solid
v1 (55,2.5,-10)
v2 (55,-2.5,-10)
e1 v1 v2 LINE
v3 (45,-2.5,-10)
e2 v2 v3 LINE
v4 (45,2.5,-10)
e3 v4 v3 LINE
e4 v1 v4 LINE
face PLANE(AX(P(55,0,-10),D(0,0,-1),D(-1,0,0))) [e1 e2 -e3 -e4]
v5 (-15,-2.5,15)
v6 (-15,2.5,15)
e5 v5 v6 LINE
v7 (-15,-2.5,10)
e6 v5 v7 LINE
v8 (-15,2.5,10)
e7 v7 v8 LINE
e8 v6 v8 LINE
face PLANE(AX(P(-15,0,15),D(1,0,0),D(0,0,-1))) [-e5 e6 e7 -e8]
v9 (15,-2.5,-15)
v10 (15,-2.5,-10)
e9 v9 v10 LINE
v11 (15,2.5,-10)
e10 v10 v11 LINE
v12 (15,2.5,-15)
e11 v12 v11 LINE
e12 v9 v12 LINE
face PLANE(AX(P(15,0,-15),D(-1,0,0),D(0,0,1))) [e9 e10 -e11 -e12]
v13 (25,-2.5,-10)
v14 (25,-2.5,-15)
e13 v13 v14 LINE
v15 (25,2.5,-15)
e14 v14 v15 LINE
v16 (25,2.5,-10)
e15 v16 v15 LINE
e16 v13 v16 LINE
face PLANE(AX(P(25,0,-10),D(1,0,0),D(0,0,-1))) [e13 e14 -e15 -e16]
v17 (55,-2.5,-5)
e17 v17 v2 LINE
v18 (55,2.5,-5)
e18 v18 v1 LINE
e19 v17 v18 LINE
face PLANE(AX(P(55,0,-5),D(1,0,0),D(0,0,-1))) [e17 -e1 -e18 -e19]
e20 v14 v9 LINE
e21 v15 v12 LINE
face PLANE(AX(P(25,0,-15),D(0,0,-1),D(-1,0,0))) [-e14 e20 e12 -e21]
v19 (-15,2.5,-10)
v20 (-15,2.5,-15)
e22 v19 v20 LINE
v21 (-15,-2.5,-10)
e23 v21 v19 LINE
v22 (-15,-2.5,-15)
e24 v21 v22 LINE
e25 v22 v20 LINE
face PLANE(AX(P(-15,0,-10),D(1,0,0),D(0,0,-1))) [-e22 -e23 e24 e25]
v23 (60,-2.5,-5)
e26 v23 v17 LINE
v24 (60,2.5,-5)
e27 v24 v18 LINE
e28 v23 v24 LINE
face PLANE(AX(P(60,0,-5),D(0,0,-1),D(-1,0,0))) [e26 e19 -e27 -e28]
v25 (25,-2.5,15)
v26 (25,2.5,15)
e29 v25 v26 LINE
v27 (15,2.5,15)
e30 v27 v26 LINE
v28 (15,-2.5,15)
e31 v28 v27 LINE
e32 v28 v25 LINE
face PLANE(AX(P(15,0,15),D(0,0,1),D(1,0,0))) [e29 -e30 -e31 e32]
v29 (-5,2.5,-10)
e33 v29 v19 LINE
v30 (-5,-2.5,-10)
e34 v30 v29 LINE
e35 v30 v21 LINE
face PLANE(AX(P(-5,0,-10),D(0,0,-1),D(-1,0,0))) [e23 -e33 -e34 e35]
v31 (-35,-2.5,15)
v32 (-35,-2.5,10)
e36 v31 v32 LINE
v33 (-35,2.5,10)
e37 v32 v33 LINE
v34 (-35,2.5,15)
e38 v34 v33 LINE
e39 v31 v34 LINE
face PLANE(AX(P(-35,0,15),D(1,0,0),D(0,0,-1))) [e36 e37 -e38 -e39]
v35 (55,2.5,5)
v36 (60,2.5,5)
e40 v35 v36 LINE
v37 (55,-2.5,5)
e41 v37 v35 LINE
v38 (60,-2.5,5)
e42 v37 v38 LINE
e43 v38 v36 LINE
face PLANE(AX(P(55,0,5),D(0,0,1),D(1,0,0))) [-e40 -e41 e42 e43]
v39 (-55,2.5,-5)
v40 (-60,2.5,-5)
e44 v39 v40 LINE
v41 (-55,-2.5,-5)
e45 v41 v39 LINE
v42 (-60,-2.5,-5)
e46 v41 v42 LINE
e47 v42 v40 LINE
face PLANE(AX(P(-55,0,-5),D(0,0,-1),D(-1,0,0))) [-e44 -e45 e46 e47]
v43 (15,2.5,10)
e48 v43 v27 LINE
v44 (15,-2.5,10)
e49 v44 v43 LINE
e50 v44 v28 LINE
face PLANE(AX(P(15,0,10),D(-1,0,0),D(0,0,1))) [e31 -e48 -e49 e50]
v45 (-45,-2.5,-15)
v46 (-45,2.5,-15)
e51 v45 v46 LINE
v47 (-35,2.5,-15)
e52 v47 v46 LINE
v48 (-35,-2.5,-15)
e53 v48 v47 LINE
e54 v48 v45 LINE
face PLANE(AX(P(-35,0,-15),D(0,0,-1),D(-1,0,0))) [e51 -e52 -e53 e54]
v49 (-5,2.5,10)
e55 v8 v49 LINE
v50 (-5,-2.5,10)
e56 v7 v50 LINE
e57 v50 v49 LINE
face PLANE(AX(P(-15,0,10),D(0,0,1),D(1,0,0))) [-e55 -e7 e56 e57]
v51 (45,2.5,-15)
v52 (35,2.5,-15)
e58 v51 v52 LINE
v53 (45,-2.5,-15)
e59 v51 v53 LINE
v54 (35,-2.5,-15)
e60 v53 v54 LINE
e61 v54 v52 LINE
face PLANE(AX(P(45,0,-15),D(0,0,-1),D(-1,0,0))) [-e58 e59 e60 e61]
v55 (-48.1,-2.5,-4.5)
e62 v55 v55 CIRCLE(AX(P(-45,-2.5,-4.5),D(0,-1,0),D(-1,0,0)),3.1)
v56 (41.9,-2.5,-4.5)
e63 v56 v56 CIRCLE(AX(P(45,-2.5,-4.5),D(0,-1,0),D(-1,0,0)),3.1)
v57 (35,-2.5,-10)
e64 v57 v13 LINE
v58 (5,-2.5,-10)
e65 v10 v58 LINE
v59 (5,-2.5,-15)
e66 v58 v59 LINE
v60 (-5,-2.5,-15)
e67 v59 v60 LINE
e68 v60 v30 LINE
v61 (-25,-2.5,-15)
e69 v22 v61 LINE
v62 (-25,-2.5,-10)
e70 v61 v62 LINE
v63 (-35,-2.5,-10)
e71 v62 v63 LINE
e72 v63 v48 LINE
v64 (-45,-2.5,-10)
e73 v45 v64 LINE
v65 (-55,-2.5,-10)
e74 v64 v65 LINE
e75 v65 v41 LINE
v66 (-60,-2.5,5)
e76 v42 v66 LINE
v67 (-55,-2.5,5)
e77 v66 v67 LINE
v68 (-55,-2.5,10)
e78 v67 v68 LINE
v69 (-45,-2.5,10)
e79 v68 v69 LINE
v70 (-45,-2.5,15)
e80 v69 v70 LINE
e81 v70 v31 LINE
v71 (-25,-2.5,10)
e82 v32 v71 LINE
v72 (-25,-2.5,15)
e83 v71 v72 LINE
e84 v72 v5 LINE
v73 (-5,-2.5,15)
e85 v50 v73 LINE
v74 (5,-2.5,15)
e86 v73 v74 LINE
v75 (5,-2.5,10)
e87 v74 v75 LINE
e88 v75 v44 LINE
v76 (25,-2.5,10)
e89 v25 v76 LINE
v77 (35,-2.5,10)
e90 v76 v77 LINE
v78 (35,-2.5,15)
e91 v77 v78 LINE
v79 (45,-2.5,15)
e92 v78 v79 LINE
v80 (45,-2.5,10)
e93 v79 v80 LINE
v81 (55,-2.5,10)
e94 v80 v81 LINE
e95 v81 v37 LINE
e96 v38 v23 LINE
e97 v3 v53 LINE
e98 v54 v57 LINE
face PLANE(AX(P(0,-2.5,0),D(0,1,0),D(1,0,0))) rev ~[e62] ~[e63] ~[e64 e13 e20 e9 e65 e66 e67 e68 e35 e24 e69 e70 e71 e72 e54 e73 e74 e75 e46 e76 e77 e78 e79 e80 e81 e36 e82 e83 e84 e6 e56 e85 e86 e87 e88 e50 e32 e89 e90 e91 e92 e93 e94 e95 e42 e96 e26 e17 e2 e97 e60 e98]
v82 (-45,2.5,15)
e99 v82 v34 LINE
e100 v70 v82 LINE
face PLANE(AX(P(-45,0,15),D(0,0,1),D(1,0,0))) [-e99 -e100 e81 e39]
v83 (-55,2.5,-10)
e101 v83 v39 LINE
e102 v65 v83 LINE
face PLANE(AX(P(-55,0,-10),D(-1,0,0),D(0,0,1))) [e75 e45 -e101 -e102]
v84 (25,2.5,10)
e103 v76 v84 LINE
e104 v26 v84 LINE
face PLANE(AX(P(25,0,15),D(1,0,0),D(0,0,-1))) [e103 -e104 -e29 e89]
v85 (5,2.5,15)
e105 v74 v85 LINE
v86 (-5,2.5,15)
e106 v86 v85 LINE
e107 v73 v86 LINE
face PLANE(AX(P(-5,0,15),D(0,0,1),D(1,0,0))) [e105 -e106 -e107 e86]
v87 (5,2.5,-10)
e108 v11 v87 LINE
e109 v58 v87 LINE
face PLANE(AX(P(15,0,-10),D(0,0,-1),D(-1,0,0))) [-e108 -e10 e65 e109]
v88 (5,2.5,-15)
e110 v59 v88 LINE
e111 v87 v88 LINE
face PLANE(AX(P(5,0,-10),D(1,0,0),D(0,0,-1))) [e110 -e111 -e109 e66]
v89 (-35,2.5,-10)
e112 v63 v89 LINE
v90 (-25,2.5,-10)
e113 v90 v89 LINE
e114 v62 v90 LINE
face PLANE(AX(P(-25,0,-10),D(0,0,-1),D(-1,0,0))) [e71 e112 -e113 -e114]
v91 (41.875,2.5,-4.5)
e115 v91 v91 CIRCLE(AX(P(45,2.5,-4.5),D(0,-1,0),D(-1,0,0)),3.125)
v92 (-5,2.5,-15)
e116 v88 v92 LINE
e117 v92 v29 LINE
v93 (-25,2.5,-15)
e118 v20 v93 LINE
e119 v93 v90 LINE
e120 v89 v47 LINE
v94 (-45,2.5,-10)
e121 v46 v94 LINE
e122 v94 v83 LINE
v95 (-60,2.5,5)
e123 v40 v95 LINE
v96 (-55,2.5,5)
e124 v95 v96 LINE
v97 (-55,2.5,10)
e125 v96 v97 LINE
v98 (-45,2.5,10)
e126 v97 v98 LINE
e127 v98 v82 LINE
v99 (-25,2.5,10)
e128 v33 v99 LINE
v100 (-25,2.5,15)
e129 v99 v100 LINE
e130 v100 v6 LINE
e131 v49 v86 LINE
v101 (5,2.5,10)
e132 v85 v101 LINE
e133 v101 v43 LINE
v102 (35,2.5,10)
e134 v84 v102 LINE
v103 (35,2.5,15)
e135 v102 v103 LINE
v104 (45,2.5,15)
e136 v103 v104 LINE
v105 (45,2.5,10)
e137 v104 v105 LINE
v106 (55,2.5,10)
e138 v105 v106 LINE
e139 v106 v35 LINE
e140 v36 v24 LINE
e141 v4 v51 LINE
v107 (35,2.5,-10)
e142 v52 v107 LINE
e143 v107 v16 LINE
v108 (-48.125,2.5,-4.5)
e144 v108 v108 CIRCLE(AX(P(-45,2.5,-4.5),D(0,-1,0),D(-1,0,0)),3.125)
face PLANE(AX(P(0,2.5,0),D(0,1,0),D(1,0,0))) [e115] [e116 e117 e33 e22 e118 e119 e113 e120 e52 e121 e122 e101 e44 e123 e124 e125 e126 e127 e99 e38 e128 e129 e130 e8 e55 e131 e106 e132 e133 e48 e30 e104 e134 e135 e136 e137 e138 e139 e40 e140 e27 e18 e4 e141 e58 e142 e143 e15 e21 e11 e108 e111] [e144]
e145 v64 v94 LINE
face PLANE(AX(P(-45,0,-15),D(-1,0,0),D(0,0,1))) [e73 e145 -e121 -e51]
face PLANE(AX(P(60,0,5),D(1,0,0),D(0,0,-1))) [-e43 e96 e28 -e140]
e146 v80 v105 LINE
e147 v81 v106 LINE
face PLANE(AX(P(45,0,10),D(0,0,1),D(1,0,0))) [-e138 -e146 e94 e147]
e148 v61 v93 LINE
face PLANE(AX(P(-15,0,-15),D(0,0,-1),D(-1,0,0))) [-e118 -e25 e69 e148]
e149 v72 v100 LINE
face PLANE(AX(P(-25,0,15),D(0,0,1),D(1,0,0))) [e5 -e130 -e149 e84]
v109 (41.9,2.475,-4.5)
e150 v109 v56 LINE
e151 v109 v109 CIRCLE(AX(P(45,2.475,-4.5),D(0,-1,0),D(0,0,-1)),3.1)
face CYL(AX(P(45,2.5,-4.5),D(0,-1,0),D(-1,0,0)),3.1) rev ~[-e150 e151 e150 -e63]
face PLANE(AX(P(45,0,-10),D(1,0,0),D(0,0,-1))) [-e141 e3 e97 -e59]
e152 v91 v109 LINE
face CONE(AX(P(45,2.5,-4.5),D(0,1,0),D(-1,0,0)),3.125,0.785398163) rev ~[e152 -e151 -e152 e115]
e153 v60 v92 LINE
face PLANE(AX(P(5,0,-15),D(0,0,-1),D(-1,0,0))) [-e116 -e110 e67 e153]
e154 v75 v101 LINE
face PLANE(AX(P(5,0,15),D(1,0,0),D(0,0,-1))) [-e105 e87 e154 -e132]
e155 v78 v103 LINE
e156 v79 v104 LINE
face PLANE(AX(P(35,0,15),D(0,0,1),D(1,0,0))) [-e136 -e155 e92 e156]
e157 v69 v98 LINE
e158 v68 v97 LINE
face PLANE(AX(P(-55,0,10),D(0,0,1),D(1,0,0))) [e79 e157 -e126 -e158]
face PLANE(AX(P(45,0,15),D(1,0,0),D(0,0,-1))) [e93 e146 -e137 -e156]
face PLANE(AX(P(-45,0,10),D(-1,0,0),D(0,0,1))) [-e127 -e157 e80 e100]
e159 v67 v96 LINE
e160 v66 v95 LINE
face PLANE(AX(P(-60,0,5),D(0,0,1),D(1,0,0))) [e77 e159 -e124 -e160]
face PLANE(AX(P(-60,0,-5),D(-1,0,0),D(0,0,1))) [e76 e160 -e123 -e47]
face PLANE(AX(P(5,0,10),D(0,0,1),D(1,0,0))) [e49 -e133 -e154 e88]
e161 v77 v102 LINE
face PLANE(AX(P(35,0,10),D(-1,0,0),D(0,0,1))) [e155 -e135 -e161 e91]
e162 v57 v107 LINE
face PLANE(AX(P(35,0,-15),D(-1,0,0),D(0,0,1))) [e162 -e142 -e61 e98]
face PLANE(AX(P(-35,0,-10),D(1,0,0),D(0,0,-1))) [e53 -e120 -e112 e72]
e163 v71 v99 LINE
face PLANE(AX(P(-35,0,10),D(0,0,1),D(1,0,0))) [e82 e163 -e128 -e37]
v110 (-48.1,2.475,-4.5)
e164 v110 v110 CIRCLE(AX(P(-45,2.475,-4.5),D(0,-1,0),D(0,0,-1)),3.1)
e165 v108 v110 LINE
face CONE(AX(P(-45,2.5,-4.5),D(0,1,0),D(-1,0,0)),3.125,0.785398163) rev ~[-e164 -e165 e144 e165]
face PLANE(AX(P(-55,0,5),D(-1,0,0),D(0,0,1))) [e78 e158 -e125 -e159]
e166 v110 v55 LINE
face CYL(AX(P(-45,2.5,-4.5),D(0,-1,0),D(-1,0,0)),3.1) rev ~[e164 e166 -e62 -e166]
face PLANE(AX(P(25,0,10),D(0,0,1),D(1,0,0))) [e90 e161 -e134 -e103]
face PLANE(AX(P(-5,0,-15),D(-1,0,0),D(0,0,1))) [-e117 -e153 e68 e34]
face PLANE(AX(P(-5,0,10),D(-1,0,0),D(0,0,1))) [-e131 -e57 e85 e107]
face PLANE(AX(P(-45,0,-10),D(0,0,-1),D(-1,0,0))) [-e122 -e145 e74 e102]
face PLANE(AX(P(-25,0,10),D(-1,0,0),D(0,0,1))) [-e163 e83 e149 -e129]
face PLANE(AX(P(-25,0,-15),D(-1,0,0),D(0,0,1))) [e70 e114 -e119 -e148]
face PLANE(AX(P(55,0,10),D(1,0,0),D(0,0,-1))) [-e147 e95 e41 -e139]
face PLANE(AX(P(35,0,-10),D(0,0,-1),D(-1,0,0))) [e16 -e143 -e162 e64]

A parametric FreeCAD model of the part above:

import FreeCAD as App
import Part
import Sketcher

V = App.Vector


def add_polygon(sketch, points):
    """Adds a closed chain of lines whose ends are joined by coincident constraints."""
    first, n = sketch.GeometryCount, len(points)
    for a, b in zip(points, points[1:] + points[:1]):
        sketch.addGeometry(Part.LineSegment(App.Vector(*a, 0), App.Vector(*b, 0)), False)
    for i in range(n):
        sketch.addConstraint(Sketcher.Constraint("Coincident", first + i, 2, first + (i + 1) % n, 1))

doc = App.newDocument("Part")
params = doc.addObject("Spreadsheet::Sheet", "Params")
for row, (alias, value) in enumerate([
    ("sketch1_width", "10 mm"),
    ("sketch1_width2", "5 mm"),
    ("pad1_length", "5 mm"),
    ("sketch2_diameter", "6.2 mm"),
    ("hole_diameter", "6.2 mm"),
    ("hole_csink_diameter", "6.25 mm"),
], start=1):
    params.set(f"A{row}", alias)
    params.set(f"B{row}", "=" + value)
    params.setAlias(f"B{row}", alias)

body = doc.addObject("PartDesign::Body", "Body")

# Sketch on XZ plane
sketch1 = body.newObject("Sketcher::SketchObject", "Sketch")
sketch1.AttachmentSupport = (doc.getObject("XZ_Plane"), [""])
sketch1.MapMode = "FlatFace"
add_polygon(sketch1, [(45, -15), (35, -15), (35, -10), (25, -10), (25, -15), (15, -15), (15, -10), (5, -10), (5, -15), (-5, -15), (-5, -10), (-15, -10), (-15, -15), (-25, -15), (-25, -10), (-35, -10), (-35, -15), (-45, -15), (-45, -10), (-55, -10), (-55, -5), (-60, -5), (-60, 5), (-55, 5), (-55, 10), (-45, 10), (-45, 15), (-35, 15), (-35, 10), (-25, 10), (-25, 15), (-15, 15), (-15, 10), (-5, 10), (-5, 15), (5, 15), (5, 10), (15, 10), (15, 15), (25, 15), (25, 10), (35, 10), (35, 15), (45, 15), (45, 10), (55, 10), (55, 5), (60, 5), (60, -5), (55, -5), (55, -10), (45, -10)])  # lines 0-51
sketch1.addConstraint(Sketcher.Constraint("Horizontal", 0))
sketch1.addConstraint(Sketcher.Constraint("Vertical", 1))
sketch1.addConstraint(Sketcher.Constraint("Horizontal", 2))
sketch1.addConstraint(Sketcher.Constraint("Vertical", 3))
sketch1.addConstraint(Sketcher.Constraint("Horizontal", 4))
sketch1.addConstraint(Sketcher.Constraint("Vertical", 5))
sketch1.addConstraint(Sketcher.Constraint("Horizontal", 6))
sketch1.addConstraint(Sketcher.Constraint("Vertical", 7))
sketch1.addConstraint(Sketcher.Constraint("Horizontal", 8))
sketch1.addConstraint(Sketcher.Constraint("Vertical", 9))
sketch1.addConstraint(Sketcher.Constraint("Horizontal", 10))
sketch1.addConstraint(Sketcher.Constraint("Vertical", 11))
sketch1.addConstraint(Sketcher.Constraint("Horizontal", 12))
sketch1.addConstraint(Sketcher.Constraint("Vertical", 13))
sketch1.addConstraint(Sketcher.Constraint("Horizontal", 14))
sketch1.addConstraint(Sketcher.Constraint("Vertical", 15))
sketch1.addConstraint(Sketcher.Constraint("Horizontal", 16))
sketch1.addConstraint(Sketcher.Constraint("Vertical", 17))
sketch1.addConstraint(Sketcher.Constraint("Horizontal", 18))
sketch1.addConstraint(Sketcher.Constraint("Vertical", 19))
sketch1.addConstraint(Sketcher.Constraint("Horizontal", 20))
sketch1.addConstraint(Sketcher.Constraint("Vertical", 21))
sketch1.addConstraint(Sketcher.Constraint("Horizontal", 22))
sketch1.addConstraint(Sketcher.Constraint("Vertical", 23))
sketch1.addConstraint(Sketcher.Constraint("Horizontal", 24))
sketch1.addConstraint(Sketcher.Constraint("Vertical", 25))
sketch1.addConstraint(Sketcher.Constraint("Horizontal", 26))
sketch1.addConstraint(Sketcher.Constraint("Vertical", 27))
sketch1.addConstraint(Sketcher.Constraint("Horizontal", 28))
sketch1.addConstraint(Sketcher.Constraint("Vertical", 29))
sketch1.addConstraint(Sketcher.Constraint("Horizontal", 30))
sketch1.addConstraint(Sketcher.Constraint("Vertical", 31))
sketch1.addConstraint(Sketcher.Constraint("Horizontal", 32))
sketch1.addConstraint(Sketcher.Constraint("Vertical", 33))
sketch1.addConstraint(Sketcher.Constraint("Horizontal", 34))
sketch1.addConstraint(Sketcher.Constraint("Vertical", 35))
sketch1.addConstraint(Sketcher.Constraint("Horizontal", 36))
sketch1.addConstraint(Sketcher.Constraint("Vertical", 37))
sketch1.addConstraint(Sketcher.Constraint("Horizontal", 38))
sketch1.addConstraint(Sketcher.Constraint("Vertical", 39))
sketch1.addConstraint(Sketcher.Constraint("Horizontal", 40))
sketch1.addConstraint(Sketcher.Constraint("Vertical", 41))
sketch1.addConstraint(Sketcher.Constraint("Horizontal", 42))
sketch1.addConstraint(Sketcher.Constraint("Vertical", 43))
sketch1.addConstraint(Sketcher.Constraint("Horizontal", 44))
sketch1.addConstraint(Sketcher.Constraint("Vertical", 45))
sketch1.addConstraint(Sketcher.Constraint("Horizontal", 46))
sketch1.addConstraint(Sketcher.Constraint("Vertical", 47))
sketch1.addConstraint(Sketcher.Constraint("Horizontal", 48))
sketch1.addConstraint(Sketcher.Constraint("Vertical", 49))
sketch1.addConstraint(Sketcher.Constraint("Horizontal", 50))
sketch1.addConstraint(Sketcher.Constraint("Vertical", 51))
sketch1.addConstraint(Sketcher.Constraint("Symmetric", 0, 2, 26, 2, -1, 1))
sketch1.addConstraint(Sketcher.Constraint("Symmetric", 2, 2, 28, 2, -1, 1))
sketch1.addConstraint(Sketcher.Constraint("Symmetric", 4, 2, 30, 2, -1, 1))
sketch1.addConstraint(Sketcher.Constraint("Symmetric", 6, 2, 32, 2, -1, 1))
sketch1.addConstraint(Sketcher.Constraint("Symmetric", 8, 2, 34, 2, -1, 1))
sketch1.addConstraint(Sketcher.Constraint("Symmetric", 10, 2, 36, 2, -1, 1))
sketch1.addConstraint(Sketcher.Constraint("Symmetric", 12, 2, 38, 2, -1, 1))
sketch1.addConstraint(Sketcher.Constraint("Symmetric", 14, 2, 40, 2, -1, 1))
sketch1.addConstraint(Sketcher.Constraint("Symmetric", 16, 2, 42, 2, -1, 1))
sketch1.addConstraint(Sketcher.Constraint("Symmetric", 18, 2, 44, 2, -1, 1))
sketch1.addConstraint(Sketcher.Constraint("Symmetric", 20, 2, 46, 2, -1, 1))
sketch1.addConstraint(Sketcher.Constraint("Symmetric", 22, 2, 48, 2, -1, 1))
sketch1.addConstraint(Sketcher.Constraint("Symmetric", 24, 2, 50, 2, -1, 1))
sketch1.addConstraint(Sketcher.Constraint("Symmetric", 6, 2, 9, 2, -2))
sketch1.addConstraint(Sketcher.Constraint("Symmetric", 4, 2, 11, 2, -2))
sketch1.addConstraint(Sketcher.Constraint("Symmetric", 2, 2, 13, 2, -2))
sketch1.addConstraint(Sketcher.Constraint("Symmetric", 0, 2, 15, 2, -2))
sketch1.addConstraint(Sketcher.Constraint("Symmetric", 24, 2, 43, 2, -2))
sketch1.addConstraint(Sketcher.Constraint("Symmetric", 22, 2, 45, 2, -2))
sketch1.addConstraint(Sketcher.Constraint("Horizontal", 0, 2, 3, 2))
sketch1.addConstraint(Sketcher.Constraint("Horizontal", 2, 2, 5, 2))
sketch1.addConstraint(Sketcher.Constraint("Horizontal", 4, 2, 7, 2))
sketch1.addConstraint(Sketcher.Constraint("Horizontal", 14, 2, 17, 2))
sketch1.addConstraint(Sketcher.Constraint("Equal", 0, 2))
sketch1.addConstraint(Sketcher.Constraint("Equal", 2, 4))
sketch1.addConstraint(Sketcher.Constraint("Equal", 4, 6))
sketch1.addConstraint(Sketcher.Constraint("Equal", 6, 8))
sketch1.addConstraint(Sketcher.Constraint("Equal", 16, 18))
sketch1.addConstraint(Sketcher.Constraint("Equal", 48, 1))
sketch1.addConstraint(Sketcher.Constraint("Equal", 17, 19))
sketch1.addConstraint(Sketcher.Constraint("Equal", 50, 21))
sketch1.addConstraint(Sketcher.Constraint("DistanceX", 0, 2, 0, 1, 10.0))
sketch1.addConstraint(Sketcher.Constraint("DistanceX", 20, 2, 20, 1, 5.0))
sketch1.setExpression("Constraints[135]", "Params.sketch1_width")
sketch1.setExpression("Constraints[136]", "Params.sketch1_width2")
pad1 = body.newObject("PartDesign::Pad", "Pad")
pad1.Profile = sketch1
pad1.setExpression("Length", "Params.pad1_length")
pad1.Midplane = True

# Sketch on XZ plane
sketch2 = body.newObject("Sketcher::SketchObject", "Sketch001")
sketch2.AttachmentSupport = (doc.getObject("XZ_Plane"), [""])
sketch2.MapMode = "FlatFace"
sketch2.AttachmentOffset = App.Placement(V(0, 0, -2.5), App.Rotation())
sketch2.addGeometry(Part.Circle(V(-45, -4.5, 0), V(0, 0, 1), 3.1), False)
sketch2.addGeometry(Part.Circle(V(45, -4.5, 0), V(0, 0, 1), 3.1), False)
sketch2.addConstraint(Sketcher.Constraint("Equal", 0, 1))
sketch2.addConstraint(Sketcher.Constraint("Symmetric", 0, 3, 1, 3, -2))
sketch2.addConstraint(Sketcher.Constraint("Diameter", 0, 6.2))
sketch2.addConstraint(Sketcher.Constraint("DistanceX", 0, 3, -1, 1, 45.0))
sketch2.addConstraint(Sketcher.Constraint("DistanceY", 0, 3, -1, 1, 4.5))
sketch2.setExpression("Constraints[2]", "Params.sketch2_diameter")
doc.recompute()
hole = body.newObject("PartDesign::Hole", "Hole")
hole.Profile = sketch2
hole.ThreadType = "None"
hole.setExpression("Diameter", "Params.hole_diameter")
hole.DepthType = "ThroughAll"
hole.HoleCutType = "Countersink"
hole.setExpression("HoleCutDiameter", "Params.hole_csink_diameter")
hole.HoleCutCountersinkAngle = 90
hole.Reversed = True

doc.recompute()
